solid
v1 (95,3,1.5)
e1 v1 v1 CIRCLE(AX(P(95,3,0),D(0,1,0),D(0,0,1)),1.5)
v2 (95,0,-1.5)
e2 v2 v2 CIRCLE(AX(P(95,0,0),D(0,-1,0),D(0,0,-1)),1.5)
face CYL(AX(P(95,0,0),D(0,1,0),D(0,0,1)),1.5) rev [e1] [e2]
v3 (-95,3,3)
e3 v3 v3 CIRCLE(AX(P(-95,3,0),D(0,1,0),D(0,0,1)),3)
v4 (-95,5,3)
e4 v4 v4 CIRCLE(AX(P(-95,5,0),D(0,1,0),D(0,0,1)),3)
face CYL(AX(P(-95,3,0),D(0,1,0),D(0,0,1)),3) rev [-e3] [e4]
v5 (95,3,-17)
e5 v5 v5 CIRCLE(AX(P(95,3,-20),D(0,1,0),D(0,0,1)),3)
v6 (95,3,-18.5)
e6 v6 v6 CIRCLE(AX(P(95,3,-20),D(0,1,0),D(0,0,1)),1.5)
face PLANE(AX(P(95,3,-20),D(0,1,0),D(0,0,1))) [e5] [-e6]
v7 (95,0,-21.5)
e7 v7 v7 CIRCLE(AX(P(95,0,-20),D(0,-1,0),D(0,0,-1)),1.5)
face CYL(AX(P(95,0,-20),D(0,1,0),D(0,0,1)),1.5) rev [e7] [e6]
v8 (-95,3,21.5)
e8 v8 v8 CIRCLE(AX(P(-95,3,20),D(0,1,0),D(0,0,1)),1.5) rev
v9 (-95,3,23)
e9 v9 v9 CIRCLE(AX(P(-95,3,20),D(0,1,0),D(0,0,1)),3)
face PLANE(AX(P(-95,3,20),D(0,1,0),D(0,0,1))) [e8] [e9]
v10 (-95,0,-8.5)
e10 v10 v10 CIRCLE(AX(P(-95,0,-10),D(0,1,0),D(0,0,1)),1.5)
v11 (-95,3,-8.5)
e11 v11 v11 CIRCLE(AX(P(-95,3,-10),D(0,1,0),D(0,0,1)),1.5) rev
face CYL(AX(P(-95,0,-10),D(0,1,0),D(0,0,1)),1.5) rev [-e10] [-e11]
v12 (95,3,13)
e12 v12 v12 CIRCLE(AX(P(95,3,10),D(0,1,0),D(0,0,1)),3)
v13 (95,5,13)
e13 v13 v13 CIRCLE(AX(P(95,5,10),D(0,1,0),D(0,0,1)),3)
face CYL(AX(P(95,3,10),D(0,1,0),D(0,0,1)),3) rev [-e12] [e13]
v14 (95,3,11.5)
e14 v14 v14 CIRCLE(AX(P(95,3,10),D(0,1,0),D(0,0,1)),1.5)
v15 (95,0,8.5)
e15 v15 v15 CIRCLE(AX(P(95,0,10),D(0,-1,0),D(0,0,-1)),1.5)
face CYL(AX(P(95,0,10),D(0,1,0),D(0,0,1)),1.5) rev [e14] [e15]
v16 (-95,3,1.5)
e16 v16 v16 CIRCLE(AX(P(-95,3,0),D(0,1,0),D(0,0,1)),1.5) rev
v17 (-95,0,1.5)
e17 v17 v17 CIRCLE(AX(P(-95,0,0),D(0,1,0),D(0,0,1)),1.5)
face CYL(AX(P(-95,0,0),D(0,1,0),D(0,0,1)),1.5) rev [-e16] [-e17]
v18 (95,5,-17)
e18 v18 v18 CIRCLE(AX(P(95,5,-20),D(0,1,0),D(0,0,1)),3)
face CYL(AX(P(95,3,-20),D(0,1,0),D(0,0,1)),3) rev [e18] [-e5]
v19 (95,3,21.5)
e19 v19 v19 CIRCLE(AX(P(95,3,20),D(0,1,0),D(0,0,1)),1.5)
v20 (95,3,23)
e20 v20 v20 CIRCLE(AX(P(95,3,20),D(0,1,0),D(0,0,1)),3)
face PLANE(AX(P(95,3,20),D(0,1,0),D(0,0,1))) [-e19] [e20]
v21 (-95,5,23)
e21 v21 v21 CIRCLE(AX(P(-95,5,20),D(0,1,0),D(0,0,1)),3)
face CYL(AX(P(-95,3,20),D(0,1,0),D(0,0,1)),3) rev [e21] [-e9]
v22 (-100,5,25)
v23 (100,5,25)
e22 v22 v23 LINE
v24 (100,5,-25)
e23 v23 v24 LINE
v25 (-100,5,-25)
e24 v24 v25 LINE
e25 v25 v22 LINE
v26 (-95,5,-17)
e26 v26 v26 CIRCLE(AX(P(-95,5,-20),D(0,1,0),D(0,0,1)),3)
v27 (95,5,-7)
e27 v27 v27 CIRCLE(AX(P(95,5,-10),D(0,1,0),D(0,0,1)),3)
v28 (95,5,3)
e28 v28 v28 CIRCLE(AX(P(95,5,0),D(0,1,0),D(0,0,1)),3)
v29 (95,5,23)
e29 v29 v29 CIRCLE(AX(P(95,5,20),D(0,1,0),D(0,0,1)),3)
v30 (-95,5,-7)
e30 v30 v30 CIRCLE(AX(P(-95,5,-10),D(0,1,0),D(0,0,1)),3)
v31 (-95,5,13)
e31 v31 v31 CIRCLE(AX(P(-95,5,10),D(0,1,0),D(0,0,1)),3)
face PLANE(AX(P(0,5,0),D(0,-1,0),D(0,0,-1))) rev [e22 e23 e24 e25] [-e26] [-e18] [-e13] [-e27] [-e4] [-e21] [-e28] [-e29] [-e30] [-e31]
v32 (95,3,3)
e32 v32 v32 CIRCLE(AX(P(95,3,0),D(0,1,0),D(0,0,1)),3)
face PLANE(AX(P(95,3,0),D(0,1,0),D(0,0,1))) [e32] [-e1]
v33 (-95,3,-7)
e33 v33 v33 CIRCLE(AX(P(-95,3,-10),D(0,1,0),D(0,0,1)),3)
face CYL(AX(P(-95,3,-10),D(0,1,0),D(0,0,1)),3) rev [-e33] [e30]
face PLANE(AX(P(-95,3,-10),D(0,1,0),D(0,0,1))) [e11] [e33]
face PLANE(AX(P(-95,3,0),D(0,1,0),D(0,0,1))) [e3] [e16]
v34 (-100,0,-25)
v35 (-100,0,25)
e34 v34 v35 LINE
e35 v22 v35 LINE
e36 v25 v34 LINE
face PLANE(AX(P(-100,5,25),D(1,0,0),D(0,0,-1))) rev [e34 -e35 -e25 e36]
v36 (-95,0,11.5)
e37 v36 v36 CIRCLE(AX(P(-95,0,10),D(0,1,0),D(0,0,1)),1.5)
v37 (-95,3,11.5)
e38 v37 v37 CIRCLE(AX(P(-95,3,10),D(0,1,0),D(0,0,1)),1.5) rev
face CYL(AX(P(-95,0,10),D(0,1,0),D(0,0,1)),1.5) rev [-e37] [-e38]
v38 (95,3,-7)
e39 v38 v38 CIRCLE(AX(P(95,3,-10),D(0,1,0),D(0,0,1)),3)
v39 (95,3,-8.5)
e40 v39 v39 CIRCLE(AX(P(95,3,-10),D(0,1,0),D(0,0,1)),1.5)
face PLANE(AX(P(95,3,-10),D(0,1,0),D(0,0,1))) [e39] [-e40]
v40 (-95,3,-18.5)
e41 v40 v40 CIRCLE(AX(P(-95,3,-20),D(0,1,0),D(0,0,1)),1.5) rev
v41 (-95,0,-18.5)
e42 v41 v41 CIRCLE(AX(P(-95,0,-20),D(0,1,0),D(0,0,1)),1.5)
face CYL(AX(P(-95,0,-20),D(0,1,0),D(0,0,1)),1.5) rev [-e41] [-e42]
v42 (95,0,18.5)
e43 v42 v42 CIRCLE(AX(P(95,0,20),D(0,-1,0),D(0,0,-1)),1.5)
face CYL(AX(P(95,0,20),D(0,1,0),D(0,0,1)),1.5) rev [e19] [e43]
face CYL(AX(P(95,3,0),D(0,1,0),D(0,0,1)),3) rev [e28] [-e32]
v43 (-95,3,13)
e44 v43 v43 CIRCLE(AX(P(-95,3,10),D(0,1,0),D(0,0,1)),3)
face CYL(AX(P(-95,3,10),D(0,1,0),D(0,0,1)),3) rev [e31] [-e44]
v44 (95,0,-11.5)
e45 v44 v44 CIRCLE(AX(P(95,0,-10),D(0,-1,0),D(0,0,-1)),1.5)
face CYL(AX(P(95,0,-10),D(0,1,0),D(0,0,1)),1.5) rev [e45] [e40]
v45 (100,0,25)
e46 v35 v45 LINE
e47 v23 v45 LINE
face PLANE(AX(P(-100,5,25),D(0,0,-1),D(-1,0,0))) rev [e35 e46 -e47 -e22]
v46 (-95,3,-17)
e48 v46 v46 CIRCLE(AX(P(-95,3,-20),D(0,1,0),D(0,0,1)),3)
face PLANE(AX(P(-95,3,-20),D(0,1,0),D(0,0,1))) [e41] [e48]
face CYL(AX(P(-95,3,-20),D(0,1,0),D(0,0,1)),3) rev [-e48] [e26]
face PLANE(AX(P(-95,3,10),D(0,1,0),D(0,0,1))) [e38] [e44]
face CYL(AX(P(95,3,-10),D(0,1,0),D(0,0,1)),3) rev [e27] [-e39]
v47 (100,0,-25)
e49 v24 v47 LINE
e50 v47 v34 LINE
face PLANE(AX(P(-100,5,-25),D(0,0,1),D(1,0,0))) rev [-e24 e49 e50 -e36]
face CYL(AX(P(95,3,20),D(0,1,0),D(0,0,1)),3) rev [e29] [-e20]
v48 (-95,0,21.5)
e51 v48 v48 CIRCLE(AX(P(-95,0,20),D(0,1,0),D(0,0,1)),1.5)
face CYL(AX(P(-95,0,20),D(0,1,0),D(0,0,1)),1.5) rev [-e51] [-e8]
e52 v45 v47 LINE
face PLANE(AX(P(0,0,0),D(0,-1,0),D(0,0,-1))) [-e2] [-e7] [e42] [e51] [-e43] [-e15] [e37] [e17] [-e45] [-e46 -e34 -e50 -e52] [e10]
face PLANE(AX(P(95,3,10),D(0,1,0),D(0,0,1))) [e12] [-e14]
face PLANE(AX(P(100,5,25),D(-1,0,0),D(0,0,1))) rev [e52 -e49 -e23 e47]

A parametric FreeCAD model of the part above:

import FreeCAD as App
import Part
import Sketcher

V = App.Vector
Q = App.Units.Quantity

doc = App.newDocument("Part")
params = doc.addObject("Spreadsheet::Sheet", "Params")
for row, (alias, value) in enumerate([
    ("sketch1_width", "200 mm"),
    ("sketch1_height", "50 mm"),
    ("pad1_length", "5 mm"),
    ("sketch2_diameter", "3 mm"),
    ("pocket1_length", "5 mm"),
    ("sketch3_diameter", "6 mm"),
    ("sketch3_diameter2", "3 mm"),
    ("pocket2_length", "2 mm"),
], start=1):
    params.set(f"A{row}", alias)
    params.set(f"B{row}", "=" + value)
    params.setAlias(f"B{row}", alias)

body = doc.addObject("PartDesign::Body", "Body")

sketch1 = doc.addObject("Sketcher::SketchObject", "Sketch")
body.addObject(sketch1)
sketch1.AttachmentSupport = (doc.XZ_Plane, [""])
sketch1.MapMode = "FlatFace"
sketch1.addGeometry([
    Part.LineSegment(V(-100, -25, 0), V(-100, 25, 0)),
    Part.LineSegment(V(-100, 25, 0), V(100, 25, 0)),
    Part.LineSegment(V(100, 25, 0), V(100, -25, 0)),
    Part.LineSegment(V(100, -25, 0), V(-100, -25, 0)),
], False)
sketch1.addConstraint([
    Sketcher.Constraint("Coincident", 0, 2, 1, 1),
    Sketcher.Constraint("Coincident", 1, 2, 2, 1),
    Sketcher.Constraint("Coincident", 2, 2, 3, 1),
    Sketcher.Constraint("Coincident", 3, 2, 0, 1),
    Sketcher.Constraint("Vertical", 0),
    Sketcher.Constraint("Horizontal", 1),
    Sketcher.Constraint("Vertical", 2),
    Sketcher.Constraint("Horizontal", 3),
    Sketcher.Constraint("Symmetric", 0, 2, 2, 2, -1, 1),
    Sketcher.Constraint("DistanceX", 1, 1, 1, 2, Q("200 mm")),
    Sketcher.Constraint("DistanceY", 0, 1, 0, 2, Q("50 mm")),
])
sketch1.setExpression("Constraints[9]", "Params.sketch1_width")
sketch1.setExpression("Constraints[10]", "Params.sketch1_height")
pad1 = doc.addObject("PartDesign::Pad", "Pad")
body.addObject(pad1)
pad1.Profile = sketch1
pad1.setExpression("Length", "Params.pad1_length")
pad1.Reversed = True

sketch2 = doc.addObject("Sketcher::SketchObject", "Sketch001")
body.addObject(sketch2)
sketch2.AttachmentSupport = (doc.XZ_Plane, [""])
sketch2.MapMode = "FlatFace"
sketch2.AttachmentOffset = App.Placement(V(0, 0, -5), App.Rotation())
sketch2.addGeometry([
    Part.Circle(V(-95, -20, 0), V(0, 0, 1), 1.5),
    Part.Circle(V(-95, -10, 0), V(0, 0, 1), 1.5),
    Part.Circle(V(-95, 0, 0), V(0, 0, 1), 1.5),
    Part.Circle(V(-95, 10, 0), V(0, 0, 1), 1.5),
    Part.Circle(V(-95, 20, 0), V(0, 0, 1), 1.5),
    Part.Circle(V(95, 20, 0), V(0, 0, 1), 1.5),
    Part.Circle(V(95, 10, 0), V(0, 0, 1), 1.5),
    Part.Circle(V(95, 0, 0), V(0, 0, 1), 1.5),
    Part.Circle(V(95, -20, 0), V(0, 0, 1), 1.5),
    Part.Circle(V(95, -10, 0), V(0, 0, 1), 1.5),
], False)
sketch2.addConstraint([
    Sketcher.Constraint("Equal", 0, 1),
    Sketcher.Constraint("Equal", 1, 2),
    Sketcher.Constraint("Equal", 2, 3),
    Sketcher.Constraint("Equal", 3, 4),
    Sketcher.Constraint("Equal", 4, 5),
    Sketcher.Constraint("Equal", 5, 6),
    Sketcher.Constraint("Equal", 6, 7),
    Sketcher.Constraint("Equal", 7, 8),
    Sketcher.Constraint("Equal", 8, 9),
    Sketcher.Constraint("Symmetric", 0, 3, 5, 3, -1, 1),
    Sketcher.Constraint("Symmetric", 1, 3, 6, 3, -1, 1),
    Sketcher.Constraint("Symmetric", 2, 3, 7, 3, -1, 1),
    Sketcher.Constraint("Symmetric", 4, 3, 8, 3, -1, 1),
    Sketcher.Constraint("Symmetric", 3, 3, 9, 3, -1, 1),
    Sketcher.Constraint("Symmetric", 4, 3, 5, 3, -2),
    Sketcher.Constraint("Symmetric", 3, 3, 6, 3, -2),
    Sketcher.Constraint("PointOnObject", 2, 3, -1),
    Sketcher.Constraint("Vertical", 0, 3, 1, 3),
    Sketcher.Constraint("Vertical", 1, 3, 2, 3),
    Sketcher.Constraint("Diameter", 0, Q("3 mm")),
    Sketcher.Constraint("DistanceX", 0, 3, -1, 1, Q("95 mm")),
    Sketcher.Constraint("DistanceY", 0, 3, -1, 1, Q("20 mm")),
    Sketcher.Constraint("DistanceY", 1, 3, -1, 1, Q("10 mm")),
])
sketch2.setExpression("Constraints[19]", "Params.sketch2_diameter")
pocket1 = doc.addObject("PartDesign::Pocket", "Pocket")
body.addObject(pocket1)
pocket1.Profile = sketch2
pocket1.setExpression("Length", "Params.pocket1_length")
pocket1.Reversed = True

sketch3 = doc.addObject("Sketcher::SketchObject", "Sketch002")
body.addObject(sketch3)
sketch3.AttachmentSupport = (doc.XZ_Plane, [""])
sketch3.MapMode = "FlatFace"
sketch3.AttachmentOffset = App.Placement(V(0, 0, -5), App.Rotation())
sketch3.addGeometry([
    Part.Circle(V(-95, -20, 0), V(0, 0, 1), 3),
    Part.Circle(V(-95, -20, 0), V(0, 0, 1), 1.5),
    Part.Circle(V(95, -20, 0), V(0, 0, 1), 3),
    Part.Circle(V(95, -20, 0), V(0, 0, 1), 1.5),
    Part.Circle(V(-95, -10, 0), V(0, 0, 1), 3),
    Part.Circle(V(-95, -10, 0), V(0, 0, 1), 1.5),
    Part.Circle(V(95, -10, 0), V(0, 0, 1), 3),
    Part.Circle(V(95, -10, 0), V(0, 0, 1), 1.5),
    Part.Circle(V(-95, 0, 0), V(0, 0, 1), 3),
    Part.Circle(V(-95, 0, 0), V(0, 0, 1), 1.5),
    Part.Circle(V(95, 0, 0), V(0, 0, 1), 3),
    Part.Circle(V(95, 0, 0), V(0, 0, 1), 1.5),
    Part.Circle(V(-95, 10, 0), V(0, 0, 1), 3),
    Part.Circle(V(-95, 10, 0), V(0, 0, 1), 1.5),
    Part.Circle(V(95, 10, 0), V(0, 0, 1), 3),
    Part.Circle(V(95, 10, 0), V(0, 0, 1), 1.5),
    Part.Circle(V(-95, 20, 0), V(0, 0, 1), 3),
    Part.Circle(V(-95, 20, 0), V(0, 0, 1), 1.5),
    Part.Circle(V(95, 20, 0), V(0, 0, 1), 3),
    Part.Circle(V(95, 20, 0), V(0, 0, 1), 1.5),
], False)
sketch3.addConstraint([
    Sketcher.Constraint("Coincident", 1, 3, 0, 3),
    Sketcher.Constraint("Coincident", 3, 3, 2, 3),
    Sketcher.Constraint("Coincident", 5, 3, 4, 3),
    Sketcher.Constraint("Coincident", 7, 3, 6, 3),
    Sketcher.Constraint("Coincident", 9, 3, 8, 3),
    Sketcher.Constraint("Coincident", 11, 3, 10, 3),
    Sketcher.Constraint("Coincident", 13, 3, 12, 3),
    Sketcher.Constraint("Coincident", 15, 3, 14, 3),
    Sketcher.Constraint("Coincident", 17, 3, 16, 3),
    Sketcher.Constraint("Coincident", 19, 3, 18, 3),
    Sketcher.Constraint("Equal", 0, 2),
    Sketcher.Constraint("Equal", 1, 3),
    Sketcher.Constraint("Equal", 2, 4),
    Sketcher.Constraint("Equal", 3, 5),
    Sketcher.Constraint("Equal", 4, 6),
    Sketcher.Constraint("Equal", 5, 7),
    Sketcher.Constraint("Equal", 6, 8),
    Sketcher.Constraint("Equal", 7, 9),
    Sketcher.Constraint("Equal", 8, 10),
    Sketcher.Constraint("Equal", 9, 11),
    Sketcher.Constraint("Equal", 10, 12),
    Sketcher.Constraint("Equal", 11, 13),
    Sketcher.Constraint("Equal", 12, 14),
    Sketcher.Constraint("Equal", 13, 15),
    Sketcher.Constraint("Equal", 14, 16),
    Sketcher.Constraint("Equal", 15, 17),
    Sketcher.Constraint("Equal", 16, 18),
    Sketcher.Constraint("Equal", 17, 19),
    Sketcher.Constraint("Symmetric", 8, 3, 10, 3, -1, 1),
    Sketcher.Constraint("Symmetric", 6, 3, 12, 3, -1, 1),
    Sketcher.Constraint("Symmetric", 4, 3, 14, 3, -1, 1),
    Sketcher.Constraint("Symmetric", 2, 3, 16, 3, -1, 1),
    Sketcher.Constraint("Symmetric", 0, 3, 18, 3, -1, 1),
    Sketcher.Constraint("Symmetric", 0, 3, 2, 3, -2),
    Sketcher.Constraint("Symmetric", 4, 3, 6, 3, -2),
    Sketcher.Constraint("PointOnObject", 8, 3, -1),
    Sketcher.Constraint("Vertical", 1, 3, 4, 3),
    Sketcher.Constraint("Vertical", 5, 3, 8, 3),
    Sketcher.Constraint("Diameter", 0, Q("6 mm")),
    Sketcher.Constraint("Diameter", 1, Q("3 mm")),
    Sketcher.Constraint("DistanceX", 0, 3, -1, 1, Q("95 mm")),
    Sketcher.Constraint("DistanceY", 0, 3, -1, 1, Q("20 mm")),
    Sketcher.Constraint("DistanceY", 4, 3, -1, 1, Q("10 mm")),
])
sketch3.setExpression("Constraints[38]", "Params.sketch3_diameter")
sketch3.setExpression("Constraints[39]", "Params.sketch3_diameter2")
pocket2 = doc.addObject("PartDesign::Pocket", "Pocket001")
body.addObject(pocket2)
pocket2.Profile = sketch3
pocket2.setExpression("Length", "Params.pocket2_length")
pocket2.Reversed = True

doc.recompute()
